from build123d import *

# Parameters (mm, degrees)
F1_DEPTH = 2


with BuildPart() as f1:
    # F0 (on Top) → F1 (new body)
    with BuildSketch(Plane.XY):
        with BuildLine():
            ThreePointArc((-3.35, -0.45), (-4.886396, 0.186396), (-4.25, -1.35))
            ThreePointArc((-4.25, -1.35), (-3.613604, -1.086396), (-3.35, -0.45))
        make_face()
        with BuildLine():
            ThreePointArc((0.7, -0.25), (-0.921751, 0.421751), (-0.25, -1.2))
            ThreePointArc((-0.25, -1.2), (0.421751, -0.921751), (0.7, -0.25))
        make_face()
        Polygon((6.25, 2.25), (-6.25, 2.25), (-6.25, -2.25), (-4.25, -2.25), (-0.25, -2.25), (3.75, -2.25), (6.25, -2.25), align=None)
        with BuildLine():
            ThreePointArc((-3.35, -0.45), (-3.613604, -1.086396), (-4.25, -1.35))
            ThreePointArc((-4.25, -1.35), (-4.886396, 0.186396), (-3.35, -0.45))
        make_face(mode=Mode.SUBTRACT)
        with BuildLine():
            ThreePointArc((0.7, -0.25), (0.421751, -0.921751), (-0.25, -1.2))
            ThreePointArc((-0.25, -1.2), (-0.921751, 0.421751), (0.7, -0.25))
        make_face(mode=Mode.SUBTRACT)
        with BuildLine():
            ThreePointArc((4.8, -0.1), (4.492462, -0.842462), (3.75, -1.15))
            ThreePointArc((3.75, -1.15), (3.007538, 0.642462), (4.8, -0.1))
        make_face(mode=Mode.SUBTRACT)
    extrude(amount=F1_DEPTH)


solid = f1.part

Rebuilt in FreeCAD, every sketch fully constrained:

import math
import FreeCAD as App
import Part
import Sketcher


def add_polygon(sketch, points):
    """Adds a closed chain of lines whose ends are joined by coincident constraints."""
    first, n = sketch.GeometryCount, len(points)
    for a, b in zip(points, points[1:] + points[:1]):
        sketch.addGeometry(Part.LineSegment(App.Vector(*a, 0), App.Vector(*b, 0)), False)
    for i in range(n):
        sketch.addConstraint(Sketcher.Constraint("Coincident", first + i, 2, first + (i + 1) % n, 1))

doc = App.newDocument("Part")
params = doc.addObject("Spreadsheet::Sheet", "Params")
for row, (alias, value) in enumerate([
    ("sketch1_radius", "0.9 mm"),
    ("sketch1_radius2", "0.95 mm"),
    ("sketch1_radius3", "1.05 mm"),
    ("sketch1_width", "12.5 mm"),
    ("sketch1_height", "4.5 mm"),
    ("pad1_length", "2 mm"),
], start=1):
    params.set(f"A{row}", alias)
    params.set(f"B{row}", "=" + value)
    params.setAlias(f"B{row}", alias)

body = doc.addObject("PartDesign::Body", "Body")

sketch1 = body.newObject("Sketcher::SketchObject", "Sketch")
sketch1.AttachmentSupport = (doc.getObject("XY_Plane"), [""])
sketch1.MapMode = "FlatFace"
add_polygon(sketch1, [(6.2, 2.2), (-6.2, 2.2), (-6.2, -2.2), (6.2, -2.2)])
sketch1.addGeometry(Part.ArcOfCircle(Part.Circle(App.Vector(-4.2, -0.5, 0), App.Vector(0, 0, 1), 0.9), math.radians(0), math.radians(270)), False)
sketch1.addGeometry(Part.ArcOfCircle(Part.Circle(App.Vector(-4.3, -0.4, 0), App.Vector(0, 0, 1), 0.9), math.radians(-90), math.radians(0)), False)
sketch1.addGeometry(Part.ArcOfCircle(Part.Circle(App.Vector(-0.2, -0.3, 0), App.Vector(0, 0, 1), 0.9), math.radians(0), math.radians(270)), False)
sketch1.addGeometry(Part.ArcOfCircle(Part.Circle(App.Vector(-0.3, -0.2, 0), App.Vector(0, 0, 1), 1), math.radians(-90), math.radians(0)), False)
sketch1.addGeometry(Part.ArcOfCircle(Part.Circle(App.Vector(3.8, -0.1, 0), App.Vector(0, 0, 1), 1), math.radians(0), math.radians(270)), False)
sketch1.addGeometry(Part.ArcOfCircle(Part.Circle(App.Vector(3.7, -0.1, 0), App.Vector(0, 0, 1), 1.1), math.radians(-90), math.radians(0)), False)
sketch1.addConstraint([
    Sketcher.Constraint("Tangent", 4, 1, 5, 2),
    Sketcher.Constraint("Coincident", 5, 1, 4, 2),
    Sketcher.Constraint("Tangent", 6, 1, 7, 2),
    Sketcher.Constraint("Coincident", 7, 1, 6, 2),
    Sketcher.Constraint("Tangent", 8, 1, 9, 2),
    Sketcher.Constraint("Coincident", 9, 1, 8, 2),
    Sketcher.Constraint("Horizontal", 0),
    Sketcher.Constraint("Vertical", 1),
    Sketcher.Constraint("Horizontal", 2),
    Sketcher.Constraint("Vertical", 3),
    Sketcher.Constraint("Symmetric", 0, 2, 2, 2, -1, 1),
    Sketcher.Constraint("Horizontal", 5, 3, 4, 1),
    Sketcher.Constraint("Horizontal", 7, 3, 6, 1),
    Sketcher.Constraint("Horizontal", 9, 3, 8, 1),
    Sketcher.Constraint("Vertical", 4, 3, 5, 1),
    Sketcher.Constraint("Vertical", 6, 3, 7, 1),
    Sketcher.Constraint("Vertical", 8, 3, 9, 1),
    Sketcher.Constraint("Radius", 4, 0.9),
    Sketcher.Constraint("Radius", 6, 0.95),
    Sketcher.Constraint("Radius", 8, 1.05),
    Sketcher.Constraint("DistanceX", 0, 2, 0, 1, 12.5),
    Sketcher.Constraint("DistanceY", 1, 2, 1, 1, 4.5),
    Sketcher.Constraint("DistanceX", 4, 3, 6, 3, 4.0),
    Sketcher.Constraint("DistanceX", 6, 3, 8, 3, 4.0),
    Sketcher.Constraint("DistanceX", 0, 2, 5, 3, 2.0),
    Sketcher.Constraint("DistanceY", 1, 2, 7, 3, 2.000002),
    Sketcher.Constraint("DistanceY", 8, 3, -1, 1, 0.1),
    Sketcher.Constraint("DistanceY", 4, 3, 6, 3, 0.2),
])
sketch1.setExpression("Constraints[21]", "Params.sketch1_radius")
sketch1.setExpression("Constraints[22]", "Params.sketch1_radius2")
sketch1.setExpression("Constraints[23]", "Params.sketch1_radius3")
sketch1.setExpression("Constraints[24]", "Params.sketch1_width")
sketch1.setExpression("Constraints[25]", "Params.sketch1_height")
pad1 = body.newObject("PartDesign::Pad", "Pad")
pad1.Profile = sketch1
pad1.setExpression("Length", "Params.pad1_length")

doc.recompute()
